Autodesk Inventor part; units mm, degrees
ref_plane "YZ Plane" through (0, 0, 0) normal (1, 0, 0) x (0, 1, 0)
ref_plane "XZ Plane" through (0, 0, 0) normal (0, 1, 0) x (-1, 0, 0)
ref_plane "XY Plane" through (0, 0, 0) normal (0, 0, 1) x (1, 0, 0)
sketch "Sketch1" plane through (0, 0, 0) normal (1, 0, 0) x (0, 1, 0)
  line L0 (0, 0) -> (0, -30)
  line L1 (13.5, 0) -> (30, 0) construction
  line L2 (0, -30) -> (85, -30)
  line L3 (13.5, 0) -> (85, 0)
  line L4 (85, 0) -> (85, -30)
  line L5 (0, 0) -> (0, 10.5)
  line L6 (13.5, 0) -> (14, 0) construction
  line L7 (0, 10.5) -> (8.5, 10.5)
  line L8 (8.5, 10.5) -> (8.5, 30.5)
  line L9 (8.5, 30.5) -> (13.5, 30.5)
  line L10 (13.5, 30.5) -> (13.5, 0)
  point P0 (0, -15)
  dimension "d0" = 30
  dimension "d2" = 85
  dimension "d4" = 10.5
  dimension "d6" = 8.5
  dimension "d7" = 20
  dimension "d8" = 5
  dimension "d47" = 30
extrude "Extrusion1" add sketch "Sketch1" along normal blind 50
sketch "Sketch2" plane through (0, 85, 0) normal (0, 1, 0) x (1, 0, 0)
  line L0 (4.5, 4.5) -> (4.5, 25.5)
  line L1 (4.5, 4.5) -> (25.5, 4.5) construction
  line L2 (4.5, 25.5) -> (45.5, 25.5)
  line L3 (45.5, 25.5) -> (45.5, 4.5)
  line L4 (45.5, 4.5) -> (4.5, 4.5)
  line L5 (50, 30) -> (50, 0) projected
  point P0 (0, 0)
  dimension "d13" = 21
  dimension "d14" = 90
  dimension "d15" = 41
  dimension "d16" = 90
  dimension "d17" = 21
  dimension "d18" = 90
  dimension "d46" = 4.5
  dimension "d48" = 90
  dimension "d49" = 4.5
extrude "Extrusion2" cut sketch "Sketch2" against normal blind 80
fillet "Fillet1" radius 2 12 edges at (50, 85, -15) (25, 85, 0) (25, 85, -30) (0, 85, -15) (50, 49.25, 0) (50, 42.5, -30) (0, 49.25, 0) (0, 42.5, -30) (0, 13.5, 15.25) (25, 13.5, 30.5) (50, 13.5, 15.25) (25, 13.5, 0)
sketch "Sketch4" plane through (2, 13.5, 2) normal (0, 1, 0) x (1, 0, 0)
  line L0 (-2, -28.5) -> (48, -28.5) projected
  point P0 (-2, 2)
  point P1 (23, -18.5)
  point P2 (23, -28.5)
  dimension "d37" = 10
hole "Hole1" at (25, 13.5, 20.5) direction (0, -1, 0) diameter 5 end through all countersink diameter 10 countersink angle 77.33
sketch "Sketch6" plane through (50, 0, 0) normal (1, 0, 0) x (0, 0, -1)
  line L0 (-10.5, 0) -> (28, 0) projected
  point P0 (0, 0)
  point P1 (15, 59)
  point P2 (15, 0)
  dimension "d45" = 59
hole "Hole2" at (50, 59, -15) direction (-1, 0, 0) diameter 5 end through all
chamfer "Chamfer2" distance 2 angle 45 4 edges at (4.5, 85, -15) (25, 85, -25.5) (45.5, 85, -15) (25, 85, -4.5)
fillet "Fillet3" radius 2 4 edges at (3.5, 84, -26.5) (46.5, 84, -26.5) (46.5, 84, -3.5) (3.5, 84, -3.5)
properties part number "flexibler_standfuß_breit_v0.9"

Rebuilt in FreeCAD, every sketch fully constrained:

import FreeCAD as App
import Part
import Sketcher
Q = App.Units.Quantity


def edges_at(feature, points):
    """Names of the edges that pass closest to the given points."""
    edges = feature.Shape.Edges
    near = lambda p: min(range(len(edges)), key=lambda i: edges[i].distToShape(Part.Vertex(*p))[0])
    return sorted({f"Edge{near(p) + 1}" for p in points})


def add_polygon(sketch, points):
    """Adds a closed chain of lines whose ends are joined by coincident constraints."""
    first, n = sketch.GeometryCount, len(points)
    for a, b in zip(points, points[1:] + points[:1]):
        sketch.addGeometry(Part.LineSegment(App.Vector(*a, 0), App.Vector(*b, 0)), False)
    for i in range(n):
        sketch.addConstraint(Sketcher.Constraint("Coincident", first + i, 2, first + (i + 1) % n, 1))

doc = App.newDocument("Part")
params = doc.addObject("Spreadsheet::Sheet", "Params")
for row, (alias, value) in enumerate([
    ("sketch1_width", "85 mm"),
    ("sketch1_width2", "5 mm"),
    ("sketch1_height", "30 mm"),
    ("sketch1_height2", "20 mm"),
    ("sketch1_width3", "8.5 mm"),
    ("pad1_length", "50 mm"),
    ("sketch2_width", "41 mm"),
    ("sketch2_height", "21 mm"),
    ("pocket1_length", "80 mm"),
    ("fillet_radius", "2 mm"),
    ("sketch3_diameter", "5 mm"),
    ("hole_diameter", "5 mm"),
    ("hole_csink_diameter", "10 mm"),
    ("sketch4_diameter", "5 mm"),
    ("hole2_diameter", "5 mm"),
    ("chamfer_size", "2 mm"),
    ("fillet2_radius", "2 mm"),
], start=1):
    params.set(f"A{row}", alias)
    params.set(f"B{row}", "=" + value)
    params.setAlias(f"B{row}", alias)

body = doc.addObject("PartDesign::Body", "Body")

sketch1 = body.newObject("Sketcher::SketchObject", "Sketch")
sketch1.AttachmentSupport = (doc.getObject("YZ_Plane"), [""])
sketch1.MapMode = "FlatFace"
add_polygon(sketch1, [(0, 10), (0, -30), (85, -30), (85, 0), (14, 0), (14, 30), (8, 30), (8, 10)])
sketch1.addConstraint([
    Sketcher.Constraint("Vertical", 0),
    Sketcher.Constraint("Horizontal", 1),
    Sketcher.Constraint("Vertical", 2),
    Sketcher.Constraint("Horizontal", 3),
    Sketcher.Constraint("Vertical", 4),
    Sketcher.Constraint("Horizontal", 5),
    Sketcher.Constraint("Vertical", 6),
    Sketcher.Constraint("Horizontal", 7),
    Sketcher.Constraint("PointOnObject", 0, 2, -2),
    Sketcher.Constraint("PointOnObject", 2, 2, -1),
    Sketcher.Constraint("DistanceX", 1, 1, 1, 2, Q("85 mm")),
    Sketcher.Constraint("DistanceX", 5, 2, 5, 1, Q("5 mm")),
    Sketcher.Constraint("DistanceY", 2, 1, 2, 2, Q("30 mm")),
    Sketcher.Constraint("DistanceY", 6, 2, 6, 1, Q("20 mm")),
    Sketcher.Constraint("DistanceX", 7, 2, 7, 1, Q("8.5 mm")),
    Sketcher.Constraint("DistanceY", -1, 1, 6, 2, Q("10.5 mm")),
])
sketch1.setExpression("Constraints[18]", "Params.sketch1_width")
sketch1.setExpression("Constraints[19]", "Params.sketch1_width2")
sketch1.setExpression("Constraints[20]", "Params.sketch1_height")
sketch1.setExpression("Constraints[21]", "Params.sketch1_height2")
sketch1.setExpression("Constraints[22]", "Params.sketch1_width3")
pad1 = body.newObject("PartDesign::Pad", "Pad")
pad1.Profile = sketch1
pad1.setExpression("Length", "Params.pad1_length")

sketch2 = body.newObject("Sketcher::SketchObject", "Sketch001")
sketch2.AttachmentSupport = (doc.getObject("XZ_Plane"), [""])
sketch2.MapMode = "FlatFace"
sketch2.AttachmentOffset = App.Placement(App.Vector(0, 0, -85), App.Rotation())
add_polygon(sketch2, [(4, -26), (4, -4), (46, -4), (46, -26)])
sketch2.addConstraint([
    Sketcher.Constraint("Vertical", 0),
    Sketcher.Constraint("Horizontal", 1),
    Sketcher.Constraint("Vertical", 2),
    Sketcher.Constraint("Horizontal", 3),
    Sketcher.Constraint("DistanceX", 1, 1, 1, 2, Q("41 mm")),
    Sketcher.Constraint("DistanceY", 0, 1, 0, 2, Q("21 mm")),
    Sketcher.Constraint("DistanceX", -1, 1, 0, 2, Q("4.5 mm")),
    Sketcher.Constraint("DistanceY", 0, 2, -1, 1, Q("4.5 mm")),
])
sketch2.setExpression("Constraints[8]", "Params.sketch2_width")
sketch2.setExpression("Constraints[9]", "Params.sketch2_height")
pocket1 = body.newObject("PartDesign::Pocket", "Pocket")
pocket1.Profile = sketch2
pocket1.setExpression("Length", "Params.pocket1_length")
pocket1.Reversed = True
doc.recompute()

fillet = body.newObject("PartDesign::Fillet", "Fillet")
fillet.Base = (pocket1, edges_at(pocket1, [
    (50, 85, -15),
    (25, 85, 0),
    (25, 85, -30),
    (0, 85, -15),
    (50, 49.25, 0),
    (50, 42.5, -30),
    (0, 49.25, 0),
    (0, 42.5, -30),
    (0, 13.5, 15.25),
    (25, 13.5, 30.5),
    (50, 13.5, 15.25),
    (25, 13.5, 0),
]))
fillet.setExpression("Radius", "Params.fillet_radius")

sketch3 = body.newObject("Sketcher::SketchObject", "Sketch002")
sketch3.AttachmentSupport = (doc.getObject("XZ_Plane"), [""])
sketch3.MapMode = "FlatFace"
sketch3.AttachmentOffset = App.Placement(App.Vector(0, 0, -13.5), App.Rotation())
sketch3.addGeometry(Part.Circle(App.Vector(25, 20.5, 0), App.Vector(0, 0, 1), 2.5), False)
sketch3.addConstraint([
    Sketcher.Constraint("Diameter", 0, Q("5 mm")),
    Sketcher.Constraint("DistanceX", -1, 1, 0, 3, Q("25 mm")),
    Sketcher.Constraint("DistanceY", -1, 1, 0, 3, Q("20.5 mm")),
])
sketch3.setExpression("Constraints[0]", "Params.sketch3_diameter")
doc.recompute()
hole = body.newObject("PartDesign::Hole", "Hole")
hole.Profile = sketch3
hole.ThreadType = "None"
hole.setExpression("Diameter", "Params.hole_diameter")
hole.DepthType = "ThroughAll"
hole.HoleCutType = "Countersink"
hole.setExpression("HoleCutDiameter", "Params.hole_csink_diameter")
hole.HoleCutCountersinkAngle = 77.33
hole.Reversed = True

sketch4 = body.newObject("Sketcher::SketchObject", "Sketch003")
sketch4.AttachmentSupport = (doc.getObject("YZ_Plane"), [""])
sketch4.MapMode = "FlatFace"
sketch4.AttachmentOffset = App.Placement(App.Vector(0, 0, 50), App.Rotation())
sketch4.addGeometry(Part.Circle(App.Vector(59, -15, 0), App.Vector(0, 0, 1), 2.5), False)
sketch4.addConstraint([
    Sketcher.Constraint("Diameter", 0, Q("5 mm")),
    Sketcher.Constraint("DistanceX", -1, 1, 0, 3, Q("59 mm")),
    Sketcher.Constraint("DistanceY", 0, 3, -1, 1, Q("15 mm")),
])
sketch4.setExpression("Constraints[0]", "Params.sketch4_diameter")
doc.recompute()
hole2 = body.newObject("PartDesign::Hole", "Hole001")
hole2.Profile = sketch4
hole2.ThreadType = "None"
hole2.setExpression("Diameter", "Params.hole2_diameter")
hole2.DepthType = "ThroughAll"
doc.recompute()

chamfer = body.newObject("PartDesign::Chamfer", "Chamfer")
chamfer.Base = (hole2, edges_at(hole2, [
    (4.5, 85, -15),
    (25, 85, -25.5),
    (45.5, 85, -15),
    (25, 85, -4.5),
]))
chamfer.setExpression("Size", "Params.chamfer_size")
doc.recompute()

fillet2 = body.newObject("PartDesign::Fillet", "Fillet001")
fillet2.Base = (chamfer, edges_at(chamfer, [
    (3.5, 84, -26.5),
    (46.5, 84, -26.5),
    (46.5, 84, -3.5),
    (3.5, 84, -3.5),
]))
fillet2.setExpression("Radius", "Params.fillet2_radius")

doc.recompute()
